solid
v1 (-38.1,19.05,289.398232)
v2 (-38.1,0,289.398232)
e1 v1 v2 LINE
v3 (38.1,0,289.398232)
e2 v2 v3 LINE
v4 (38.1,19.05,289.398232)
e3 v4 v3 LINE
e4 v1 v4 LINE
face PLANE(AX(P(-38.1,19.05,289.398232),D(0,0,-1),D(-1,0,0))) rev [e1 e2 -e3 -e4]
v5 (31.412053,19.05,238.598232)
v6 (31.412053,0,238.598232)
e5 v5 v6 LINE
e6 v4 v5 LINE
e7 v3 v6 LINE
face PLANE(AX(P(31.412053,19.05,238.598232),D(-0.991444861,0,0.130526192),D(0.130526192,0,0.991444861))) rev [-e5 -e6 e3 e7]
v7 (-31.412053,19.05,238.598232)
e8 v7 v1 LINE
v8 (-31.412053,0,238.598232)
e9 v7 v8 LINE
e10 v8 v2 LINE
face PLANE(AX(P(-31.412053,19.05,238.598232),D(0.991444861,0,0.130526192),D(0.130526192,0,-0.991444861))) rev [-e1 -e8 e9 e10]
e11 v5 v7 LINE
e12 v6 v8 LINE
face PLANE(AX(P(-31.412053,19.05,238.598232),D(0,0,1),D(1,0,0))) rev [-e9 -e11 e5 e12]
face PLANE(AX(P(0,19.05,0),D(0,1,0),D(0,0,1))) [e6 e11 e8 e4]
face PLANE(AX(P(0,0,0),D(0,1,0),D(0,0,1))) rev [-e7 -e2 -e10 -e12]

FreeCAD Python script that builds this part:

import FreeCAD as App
import Part
import Sketcher
Q = App.Units.Quantity


def add_polygon(sketch, points):
    """Adds a closed chain of lines whose ends are joined by coincident constraints."""
    first, n = sketch.GeometryCount, len(points)
    for a, b in zip(points, points[1:] + points[:1]):
        sketch.addGeometry(Part.LineSegment(App.Vector(*a, 0), App.Vector(*b, 0)), False)
    for i in range(n):
        sketch.addConstraint(Sketcher.Constraint("Coincident", first + i, 2, first + (i + 1) % n, 1))

doc = App.newDocument("Part")
body = doc.addObject("PartDesign::Body", "Body")

sketch1 = body.newObject("Sketcher::SketchObject", "Sketch")
sketch1.AttachmentSupport = (doc.getObject("XZ_Plane"), [""])
sketch1.MapMode = "FlatFace"
add_polygon(sketch1, [(-38, 289), (38, 289), (31, 239), (-31, 239)])
sketch1.addConstraint([
    Sketcher.Constraint("Horizontal", 0),
    Sketcher.Constraint("Horizontal", 2),
    Sketcher.Constraint("Equal", 1, 3),
    Sketcher.Constraint("DistanceX", 0, 1, 0, 2, Q("3 in")),
    Sketcher.Constraint("DistanceY", 1, 2, 0, 2, Q("2 in")),
    Sketcher.Constraint("DistanceX", -1, 1, 0, 2, Q("1.5 in")),
    Sketcher.Constraint("Angle", 1, Q("-97.5 deg")),
    Sketcher.Constraint("DistanceY", -1, 1, 0, 2, Q("289.398232 mm")),
])
pad1 = body.newObject("PartDesign::Pad", "Pad")
pad1.Profile = sketch1
pad1.Length = Q("0.75 in")
pad1.Reversed = True

doc.recompute()
